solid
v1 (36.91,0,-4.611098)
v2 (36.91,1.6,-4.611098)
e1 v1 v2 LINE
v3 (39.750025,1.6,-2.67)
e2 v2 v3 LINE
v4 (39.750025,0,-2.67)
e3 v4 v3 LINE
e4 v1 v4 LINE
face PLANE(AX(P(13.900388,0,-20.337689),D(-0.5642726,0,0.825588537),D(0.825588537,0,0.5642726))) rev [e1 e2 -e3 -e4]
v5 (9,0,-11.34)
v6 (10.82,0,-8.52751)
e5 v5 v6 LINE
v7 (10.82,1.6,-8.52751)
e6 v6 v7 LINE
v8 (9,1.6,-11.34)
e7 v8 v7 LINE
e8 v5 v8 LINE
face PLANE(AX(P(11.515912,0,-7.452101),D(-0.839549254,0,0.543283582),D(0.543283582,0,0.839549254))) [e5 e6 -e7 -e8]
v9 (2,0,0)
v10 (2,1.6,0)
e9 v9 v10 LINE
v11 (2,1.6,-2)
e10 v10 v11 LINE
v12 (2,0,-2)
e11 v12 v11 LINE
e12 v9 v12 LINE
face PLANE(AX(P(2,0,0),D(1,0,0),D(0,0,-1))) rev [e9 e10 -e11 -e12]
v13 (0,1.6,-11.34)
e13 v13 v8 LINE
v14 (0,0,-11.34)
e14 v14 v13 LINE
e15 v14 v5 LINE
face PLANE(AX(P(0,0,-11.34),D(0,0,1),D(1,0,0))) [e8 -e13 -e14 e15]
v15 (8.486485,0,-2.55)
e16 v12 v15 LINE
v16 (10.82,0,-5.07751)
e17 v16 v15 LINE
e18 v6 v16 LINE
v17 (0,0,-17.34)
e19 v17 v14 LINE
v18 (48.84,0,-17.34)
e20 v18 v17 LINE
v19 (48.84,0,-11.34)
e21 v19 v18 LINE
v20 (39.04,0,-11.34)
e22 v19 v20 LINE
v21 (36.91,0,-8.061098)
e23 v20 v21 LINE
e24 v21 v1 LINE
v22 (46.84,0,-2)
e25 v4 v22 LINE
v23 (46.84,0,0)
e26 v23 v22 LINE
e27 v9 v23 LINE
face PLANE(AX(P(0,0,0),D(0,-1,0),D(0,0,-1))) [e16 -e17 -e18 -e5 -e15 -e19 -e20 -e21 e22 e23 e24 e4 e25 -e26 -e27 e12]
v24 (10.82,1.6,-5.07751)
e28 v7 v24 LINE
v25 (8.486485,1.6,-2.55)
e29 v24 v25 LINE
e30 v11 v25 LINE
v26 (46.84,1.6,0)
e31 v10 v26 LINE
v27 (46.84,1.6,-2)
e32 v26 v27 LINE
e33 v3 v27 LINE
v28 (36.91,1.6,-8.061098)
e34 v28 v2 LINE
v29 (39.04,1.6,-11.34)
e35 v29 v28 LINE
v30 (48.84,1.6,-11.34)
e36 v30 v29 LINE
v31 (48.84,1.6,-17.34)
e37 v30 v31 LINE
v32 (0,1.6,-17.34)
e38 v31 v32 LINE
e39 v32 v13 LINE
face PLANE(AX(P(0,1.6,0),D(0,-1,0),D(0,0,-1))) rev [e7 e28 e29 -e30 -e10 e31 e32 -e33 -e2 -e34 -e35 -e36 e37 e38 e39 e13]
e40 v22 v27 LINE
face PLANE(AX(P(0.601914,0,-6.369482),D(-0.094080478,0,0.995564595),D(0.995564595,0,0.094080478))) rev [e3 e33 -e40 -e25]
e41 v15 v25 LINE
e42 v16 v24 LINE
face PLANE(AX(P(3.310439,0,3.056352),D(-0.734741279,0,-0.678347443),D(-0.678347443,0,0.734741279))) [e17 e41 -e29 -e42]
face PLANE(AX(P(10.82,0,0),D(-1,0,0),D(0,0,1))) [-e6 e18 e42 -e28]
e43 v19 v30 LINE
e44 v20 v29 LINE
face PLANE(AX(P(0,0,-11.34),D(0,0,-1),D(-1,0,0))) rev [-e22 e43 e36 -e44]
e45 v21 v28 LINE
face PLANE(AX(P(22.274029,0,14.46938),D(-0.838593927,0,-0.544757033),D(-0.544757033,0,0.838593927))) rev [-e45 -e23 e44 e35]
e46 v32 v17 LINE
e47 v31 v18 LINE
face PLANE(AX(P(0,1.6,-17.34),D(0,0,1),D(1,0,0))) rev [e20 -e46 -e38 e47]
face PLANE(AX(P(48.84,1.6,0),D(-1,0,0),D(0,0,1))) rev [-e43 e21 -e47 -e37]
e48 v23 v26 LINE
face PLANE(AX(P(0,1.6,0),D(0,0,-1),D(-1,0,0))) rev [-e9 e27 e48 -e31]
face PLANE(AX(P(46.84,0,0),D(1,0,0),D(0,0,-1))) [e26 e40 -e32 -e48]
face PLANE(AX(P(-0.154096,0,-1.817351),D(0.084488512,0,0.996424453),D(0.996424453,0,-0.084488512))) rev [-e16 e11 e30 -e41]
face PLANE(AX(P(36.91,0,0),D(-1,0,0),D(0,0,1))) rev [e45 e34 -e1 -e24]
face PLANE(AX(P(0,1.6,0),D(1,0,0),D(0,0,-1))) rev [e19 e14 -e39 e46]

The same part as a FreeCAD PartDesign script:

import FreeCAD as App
import Part
import Sketcher

V = App.Vector
Q = App.Units.Quantity


def add_polygon(sketch, points):
    """Adds a closed chain of lines whose ends are joined by coincident constraints."""
    first, n = sketch.GeometryCount, len(points)
    for a, b in zip(points, points[1:] + points[:1]):
        sketch.addGeometry(Part.LineSegment(App.Vector(*a, 0), App.Vector(*b, 0)), False)
    for i in range(n):
        sketch.addConstraint(Sketcher.Constraint("Coincident", first + i, 2, first + (i + 1) % n, 1))

doc = App.newDocument("Part")
body = doc.addObject("PartDesign::Body", "Body")

# Sketch on XZ plane
sketch1 = body.newObject("Sketcher::SketchObject", "Sketch")
sketch1.AttachmentSupport = (doc.getObject("XZ_Plane"), [""])
sketch1.MapMode = "FlatFace"
add_polygon(sketch1, [(0, -17), (0, 0), (49, 0), (49, -17)])  # lines 0-3
sketch1.addConstraint([
    Sketcher.Constraint("Vertical", 0),
    Sketcher.Constraint("Horizontal", 1),
    Sketcher.Constraint("Vertical", 2),
    Sketcher.Constraint("Horizontal", 3),
    Sketcher.Constraint("Coincident", 0, 2, -1, 1),
    Sketcher.Constraint("DistanceX", 1, 1, 1, 2, Q("48.84 mm")),
    Sketcher.Constraint("DistanceY", 0, 1, 0, 2, Q("17.34 mm")),
])
pad1 = body.newObject("PartDesign::Pad", "Pad")
pad1.Profile = sketch1
pad1.Length = 1.6
pad1.Reversed = True

# Sketch on XZ plane
sketch2 = body.newObject("Sketcher::SketchObject", "Sketch001")
sketch2.AttachmentSupport = (doc.getObject("XZ_Plane"), [""])
sketch2.MapMode = "FlatFace"
sketch2.AttachmentOffset = App.Placement(V(0, 0, -1.6), App.Rotation())
add_polygon(sketch2, [(46.8, -2), (46.8, 0), (48.8, 0), (48.8, -11.3), (39, -11.3), (36.9, -8.1), (36.9, -4.6), (39.8, -2.7)])  # lines 0-7
add_polygon(sketch2, [(9, -11.3), (0, -11.3), (0, 0), (2, 0), (2, -2), (8.5, -2.5), (10.8, -5.1), (10.8, -8.5)])  # lines 8-15
sketch2.addConstraint([
    Sketcher.Constraint("Vertical", 0),
    Sketcher.Constraint("Horizontal", 1),
    Sketcher.Constraint("Vertical", 2),
    Sketcher.Constraint("Horizontal", 3),
    Sketcher.Constraint("Vertical", 5),
    Sketcher.Constraint("Horizontal", 8),
    Sketcher.Constraint("Vertical", 9),
    Sketcher.Constraint("Horizontal", 10),
    Sketcher.Constraint("Vertical", 11),
    Sketcher.Constraint("Vertical", 14),
    Sketcher.Constraint("Coincident", 9, 2, -1, 1),
    Sketcher.Constraint("PointOnObject", 0, 2, -1),
    Sketcher.Constraint("Horizontal", 3, 2, 8, 2),
    Sketcher.Constraint("Horizontal", 7, 2, 11, 2),
    Sketcher.Constraint("Equal", 1, 10),
    Sketcher.Constraint("Equal", 10, 0),
    Sketcher.Constraint("Equal", 5, 14),
    Sketcher.Constraint("Equal", 6, 13),
    Sketcher.Constraint("DistanceX", 1, 1, 1, 2, Q("2 mm")),
    Sketcher.Constraint("DistanceX", 8, 2, 8, 1, Q("9 mm")),
    Sketcher.Constraint("DistanceX", 3, 2, 3, 1, Q("9.8 mm")),
    Sketcher.Constraint("DistanceY", 2, 2, 2, 1, Q("11.34 mm")),
    Sketcher.Constraint("DistanceY", 5, 1, 5, 2, Q("3.45 mm")),
    Sketcher.Constraint("Distance", 4, Q("3.91 mm")),
    Sketcher.Constraint("Distance", 6, Q("3.44 mm")),
    Sketcher.Constraint("Distance", 15, Q("3.35 mm")),
    Sketcher.Constraint("DistanceX", -1, 1, 0, 2, Q("46.84 mm")),
    Sketcher.Constraint("DistanceX", -1, 1, 4, 2, Q("36.91 mm")),
    Sketcher.Constraint("DistanceY", 6, 2, -1, 1, Q("2.67 mm")),
    Sketcher.Constraint("DistanceY", 12, 2, -1, 1, Q("2.55 mm")),
    Sketcher.Constraint("DistanceX", -1, 1, 13, 2, Q("10.82 mm")),
])
pocket1 = body.newObject("PartDesign::Pocket", "Pocket")
pocket1.Profile = sketch2
pocket1.Length = 1.6
pocket1.Reversed = True

doc.recompute()
